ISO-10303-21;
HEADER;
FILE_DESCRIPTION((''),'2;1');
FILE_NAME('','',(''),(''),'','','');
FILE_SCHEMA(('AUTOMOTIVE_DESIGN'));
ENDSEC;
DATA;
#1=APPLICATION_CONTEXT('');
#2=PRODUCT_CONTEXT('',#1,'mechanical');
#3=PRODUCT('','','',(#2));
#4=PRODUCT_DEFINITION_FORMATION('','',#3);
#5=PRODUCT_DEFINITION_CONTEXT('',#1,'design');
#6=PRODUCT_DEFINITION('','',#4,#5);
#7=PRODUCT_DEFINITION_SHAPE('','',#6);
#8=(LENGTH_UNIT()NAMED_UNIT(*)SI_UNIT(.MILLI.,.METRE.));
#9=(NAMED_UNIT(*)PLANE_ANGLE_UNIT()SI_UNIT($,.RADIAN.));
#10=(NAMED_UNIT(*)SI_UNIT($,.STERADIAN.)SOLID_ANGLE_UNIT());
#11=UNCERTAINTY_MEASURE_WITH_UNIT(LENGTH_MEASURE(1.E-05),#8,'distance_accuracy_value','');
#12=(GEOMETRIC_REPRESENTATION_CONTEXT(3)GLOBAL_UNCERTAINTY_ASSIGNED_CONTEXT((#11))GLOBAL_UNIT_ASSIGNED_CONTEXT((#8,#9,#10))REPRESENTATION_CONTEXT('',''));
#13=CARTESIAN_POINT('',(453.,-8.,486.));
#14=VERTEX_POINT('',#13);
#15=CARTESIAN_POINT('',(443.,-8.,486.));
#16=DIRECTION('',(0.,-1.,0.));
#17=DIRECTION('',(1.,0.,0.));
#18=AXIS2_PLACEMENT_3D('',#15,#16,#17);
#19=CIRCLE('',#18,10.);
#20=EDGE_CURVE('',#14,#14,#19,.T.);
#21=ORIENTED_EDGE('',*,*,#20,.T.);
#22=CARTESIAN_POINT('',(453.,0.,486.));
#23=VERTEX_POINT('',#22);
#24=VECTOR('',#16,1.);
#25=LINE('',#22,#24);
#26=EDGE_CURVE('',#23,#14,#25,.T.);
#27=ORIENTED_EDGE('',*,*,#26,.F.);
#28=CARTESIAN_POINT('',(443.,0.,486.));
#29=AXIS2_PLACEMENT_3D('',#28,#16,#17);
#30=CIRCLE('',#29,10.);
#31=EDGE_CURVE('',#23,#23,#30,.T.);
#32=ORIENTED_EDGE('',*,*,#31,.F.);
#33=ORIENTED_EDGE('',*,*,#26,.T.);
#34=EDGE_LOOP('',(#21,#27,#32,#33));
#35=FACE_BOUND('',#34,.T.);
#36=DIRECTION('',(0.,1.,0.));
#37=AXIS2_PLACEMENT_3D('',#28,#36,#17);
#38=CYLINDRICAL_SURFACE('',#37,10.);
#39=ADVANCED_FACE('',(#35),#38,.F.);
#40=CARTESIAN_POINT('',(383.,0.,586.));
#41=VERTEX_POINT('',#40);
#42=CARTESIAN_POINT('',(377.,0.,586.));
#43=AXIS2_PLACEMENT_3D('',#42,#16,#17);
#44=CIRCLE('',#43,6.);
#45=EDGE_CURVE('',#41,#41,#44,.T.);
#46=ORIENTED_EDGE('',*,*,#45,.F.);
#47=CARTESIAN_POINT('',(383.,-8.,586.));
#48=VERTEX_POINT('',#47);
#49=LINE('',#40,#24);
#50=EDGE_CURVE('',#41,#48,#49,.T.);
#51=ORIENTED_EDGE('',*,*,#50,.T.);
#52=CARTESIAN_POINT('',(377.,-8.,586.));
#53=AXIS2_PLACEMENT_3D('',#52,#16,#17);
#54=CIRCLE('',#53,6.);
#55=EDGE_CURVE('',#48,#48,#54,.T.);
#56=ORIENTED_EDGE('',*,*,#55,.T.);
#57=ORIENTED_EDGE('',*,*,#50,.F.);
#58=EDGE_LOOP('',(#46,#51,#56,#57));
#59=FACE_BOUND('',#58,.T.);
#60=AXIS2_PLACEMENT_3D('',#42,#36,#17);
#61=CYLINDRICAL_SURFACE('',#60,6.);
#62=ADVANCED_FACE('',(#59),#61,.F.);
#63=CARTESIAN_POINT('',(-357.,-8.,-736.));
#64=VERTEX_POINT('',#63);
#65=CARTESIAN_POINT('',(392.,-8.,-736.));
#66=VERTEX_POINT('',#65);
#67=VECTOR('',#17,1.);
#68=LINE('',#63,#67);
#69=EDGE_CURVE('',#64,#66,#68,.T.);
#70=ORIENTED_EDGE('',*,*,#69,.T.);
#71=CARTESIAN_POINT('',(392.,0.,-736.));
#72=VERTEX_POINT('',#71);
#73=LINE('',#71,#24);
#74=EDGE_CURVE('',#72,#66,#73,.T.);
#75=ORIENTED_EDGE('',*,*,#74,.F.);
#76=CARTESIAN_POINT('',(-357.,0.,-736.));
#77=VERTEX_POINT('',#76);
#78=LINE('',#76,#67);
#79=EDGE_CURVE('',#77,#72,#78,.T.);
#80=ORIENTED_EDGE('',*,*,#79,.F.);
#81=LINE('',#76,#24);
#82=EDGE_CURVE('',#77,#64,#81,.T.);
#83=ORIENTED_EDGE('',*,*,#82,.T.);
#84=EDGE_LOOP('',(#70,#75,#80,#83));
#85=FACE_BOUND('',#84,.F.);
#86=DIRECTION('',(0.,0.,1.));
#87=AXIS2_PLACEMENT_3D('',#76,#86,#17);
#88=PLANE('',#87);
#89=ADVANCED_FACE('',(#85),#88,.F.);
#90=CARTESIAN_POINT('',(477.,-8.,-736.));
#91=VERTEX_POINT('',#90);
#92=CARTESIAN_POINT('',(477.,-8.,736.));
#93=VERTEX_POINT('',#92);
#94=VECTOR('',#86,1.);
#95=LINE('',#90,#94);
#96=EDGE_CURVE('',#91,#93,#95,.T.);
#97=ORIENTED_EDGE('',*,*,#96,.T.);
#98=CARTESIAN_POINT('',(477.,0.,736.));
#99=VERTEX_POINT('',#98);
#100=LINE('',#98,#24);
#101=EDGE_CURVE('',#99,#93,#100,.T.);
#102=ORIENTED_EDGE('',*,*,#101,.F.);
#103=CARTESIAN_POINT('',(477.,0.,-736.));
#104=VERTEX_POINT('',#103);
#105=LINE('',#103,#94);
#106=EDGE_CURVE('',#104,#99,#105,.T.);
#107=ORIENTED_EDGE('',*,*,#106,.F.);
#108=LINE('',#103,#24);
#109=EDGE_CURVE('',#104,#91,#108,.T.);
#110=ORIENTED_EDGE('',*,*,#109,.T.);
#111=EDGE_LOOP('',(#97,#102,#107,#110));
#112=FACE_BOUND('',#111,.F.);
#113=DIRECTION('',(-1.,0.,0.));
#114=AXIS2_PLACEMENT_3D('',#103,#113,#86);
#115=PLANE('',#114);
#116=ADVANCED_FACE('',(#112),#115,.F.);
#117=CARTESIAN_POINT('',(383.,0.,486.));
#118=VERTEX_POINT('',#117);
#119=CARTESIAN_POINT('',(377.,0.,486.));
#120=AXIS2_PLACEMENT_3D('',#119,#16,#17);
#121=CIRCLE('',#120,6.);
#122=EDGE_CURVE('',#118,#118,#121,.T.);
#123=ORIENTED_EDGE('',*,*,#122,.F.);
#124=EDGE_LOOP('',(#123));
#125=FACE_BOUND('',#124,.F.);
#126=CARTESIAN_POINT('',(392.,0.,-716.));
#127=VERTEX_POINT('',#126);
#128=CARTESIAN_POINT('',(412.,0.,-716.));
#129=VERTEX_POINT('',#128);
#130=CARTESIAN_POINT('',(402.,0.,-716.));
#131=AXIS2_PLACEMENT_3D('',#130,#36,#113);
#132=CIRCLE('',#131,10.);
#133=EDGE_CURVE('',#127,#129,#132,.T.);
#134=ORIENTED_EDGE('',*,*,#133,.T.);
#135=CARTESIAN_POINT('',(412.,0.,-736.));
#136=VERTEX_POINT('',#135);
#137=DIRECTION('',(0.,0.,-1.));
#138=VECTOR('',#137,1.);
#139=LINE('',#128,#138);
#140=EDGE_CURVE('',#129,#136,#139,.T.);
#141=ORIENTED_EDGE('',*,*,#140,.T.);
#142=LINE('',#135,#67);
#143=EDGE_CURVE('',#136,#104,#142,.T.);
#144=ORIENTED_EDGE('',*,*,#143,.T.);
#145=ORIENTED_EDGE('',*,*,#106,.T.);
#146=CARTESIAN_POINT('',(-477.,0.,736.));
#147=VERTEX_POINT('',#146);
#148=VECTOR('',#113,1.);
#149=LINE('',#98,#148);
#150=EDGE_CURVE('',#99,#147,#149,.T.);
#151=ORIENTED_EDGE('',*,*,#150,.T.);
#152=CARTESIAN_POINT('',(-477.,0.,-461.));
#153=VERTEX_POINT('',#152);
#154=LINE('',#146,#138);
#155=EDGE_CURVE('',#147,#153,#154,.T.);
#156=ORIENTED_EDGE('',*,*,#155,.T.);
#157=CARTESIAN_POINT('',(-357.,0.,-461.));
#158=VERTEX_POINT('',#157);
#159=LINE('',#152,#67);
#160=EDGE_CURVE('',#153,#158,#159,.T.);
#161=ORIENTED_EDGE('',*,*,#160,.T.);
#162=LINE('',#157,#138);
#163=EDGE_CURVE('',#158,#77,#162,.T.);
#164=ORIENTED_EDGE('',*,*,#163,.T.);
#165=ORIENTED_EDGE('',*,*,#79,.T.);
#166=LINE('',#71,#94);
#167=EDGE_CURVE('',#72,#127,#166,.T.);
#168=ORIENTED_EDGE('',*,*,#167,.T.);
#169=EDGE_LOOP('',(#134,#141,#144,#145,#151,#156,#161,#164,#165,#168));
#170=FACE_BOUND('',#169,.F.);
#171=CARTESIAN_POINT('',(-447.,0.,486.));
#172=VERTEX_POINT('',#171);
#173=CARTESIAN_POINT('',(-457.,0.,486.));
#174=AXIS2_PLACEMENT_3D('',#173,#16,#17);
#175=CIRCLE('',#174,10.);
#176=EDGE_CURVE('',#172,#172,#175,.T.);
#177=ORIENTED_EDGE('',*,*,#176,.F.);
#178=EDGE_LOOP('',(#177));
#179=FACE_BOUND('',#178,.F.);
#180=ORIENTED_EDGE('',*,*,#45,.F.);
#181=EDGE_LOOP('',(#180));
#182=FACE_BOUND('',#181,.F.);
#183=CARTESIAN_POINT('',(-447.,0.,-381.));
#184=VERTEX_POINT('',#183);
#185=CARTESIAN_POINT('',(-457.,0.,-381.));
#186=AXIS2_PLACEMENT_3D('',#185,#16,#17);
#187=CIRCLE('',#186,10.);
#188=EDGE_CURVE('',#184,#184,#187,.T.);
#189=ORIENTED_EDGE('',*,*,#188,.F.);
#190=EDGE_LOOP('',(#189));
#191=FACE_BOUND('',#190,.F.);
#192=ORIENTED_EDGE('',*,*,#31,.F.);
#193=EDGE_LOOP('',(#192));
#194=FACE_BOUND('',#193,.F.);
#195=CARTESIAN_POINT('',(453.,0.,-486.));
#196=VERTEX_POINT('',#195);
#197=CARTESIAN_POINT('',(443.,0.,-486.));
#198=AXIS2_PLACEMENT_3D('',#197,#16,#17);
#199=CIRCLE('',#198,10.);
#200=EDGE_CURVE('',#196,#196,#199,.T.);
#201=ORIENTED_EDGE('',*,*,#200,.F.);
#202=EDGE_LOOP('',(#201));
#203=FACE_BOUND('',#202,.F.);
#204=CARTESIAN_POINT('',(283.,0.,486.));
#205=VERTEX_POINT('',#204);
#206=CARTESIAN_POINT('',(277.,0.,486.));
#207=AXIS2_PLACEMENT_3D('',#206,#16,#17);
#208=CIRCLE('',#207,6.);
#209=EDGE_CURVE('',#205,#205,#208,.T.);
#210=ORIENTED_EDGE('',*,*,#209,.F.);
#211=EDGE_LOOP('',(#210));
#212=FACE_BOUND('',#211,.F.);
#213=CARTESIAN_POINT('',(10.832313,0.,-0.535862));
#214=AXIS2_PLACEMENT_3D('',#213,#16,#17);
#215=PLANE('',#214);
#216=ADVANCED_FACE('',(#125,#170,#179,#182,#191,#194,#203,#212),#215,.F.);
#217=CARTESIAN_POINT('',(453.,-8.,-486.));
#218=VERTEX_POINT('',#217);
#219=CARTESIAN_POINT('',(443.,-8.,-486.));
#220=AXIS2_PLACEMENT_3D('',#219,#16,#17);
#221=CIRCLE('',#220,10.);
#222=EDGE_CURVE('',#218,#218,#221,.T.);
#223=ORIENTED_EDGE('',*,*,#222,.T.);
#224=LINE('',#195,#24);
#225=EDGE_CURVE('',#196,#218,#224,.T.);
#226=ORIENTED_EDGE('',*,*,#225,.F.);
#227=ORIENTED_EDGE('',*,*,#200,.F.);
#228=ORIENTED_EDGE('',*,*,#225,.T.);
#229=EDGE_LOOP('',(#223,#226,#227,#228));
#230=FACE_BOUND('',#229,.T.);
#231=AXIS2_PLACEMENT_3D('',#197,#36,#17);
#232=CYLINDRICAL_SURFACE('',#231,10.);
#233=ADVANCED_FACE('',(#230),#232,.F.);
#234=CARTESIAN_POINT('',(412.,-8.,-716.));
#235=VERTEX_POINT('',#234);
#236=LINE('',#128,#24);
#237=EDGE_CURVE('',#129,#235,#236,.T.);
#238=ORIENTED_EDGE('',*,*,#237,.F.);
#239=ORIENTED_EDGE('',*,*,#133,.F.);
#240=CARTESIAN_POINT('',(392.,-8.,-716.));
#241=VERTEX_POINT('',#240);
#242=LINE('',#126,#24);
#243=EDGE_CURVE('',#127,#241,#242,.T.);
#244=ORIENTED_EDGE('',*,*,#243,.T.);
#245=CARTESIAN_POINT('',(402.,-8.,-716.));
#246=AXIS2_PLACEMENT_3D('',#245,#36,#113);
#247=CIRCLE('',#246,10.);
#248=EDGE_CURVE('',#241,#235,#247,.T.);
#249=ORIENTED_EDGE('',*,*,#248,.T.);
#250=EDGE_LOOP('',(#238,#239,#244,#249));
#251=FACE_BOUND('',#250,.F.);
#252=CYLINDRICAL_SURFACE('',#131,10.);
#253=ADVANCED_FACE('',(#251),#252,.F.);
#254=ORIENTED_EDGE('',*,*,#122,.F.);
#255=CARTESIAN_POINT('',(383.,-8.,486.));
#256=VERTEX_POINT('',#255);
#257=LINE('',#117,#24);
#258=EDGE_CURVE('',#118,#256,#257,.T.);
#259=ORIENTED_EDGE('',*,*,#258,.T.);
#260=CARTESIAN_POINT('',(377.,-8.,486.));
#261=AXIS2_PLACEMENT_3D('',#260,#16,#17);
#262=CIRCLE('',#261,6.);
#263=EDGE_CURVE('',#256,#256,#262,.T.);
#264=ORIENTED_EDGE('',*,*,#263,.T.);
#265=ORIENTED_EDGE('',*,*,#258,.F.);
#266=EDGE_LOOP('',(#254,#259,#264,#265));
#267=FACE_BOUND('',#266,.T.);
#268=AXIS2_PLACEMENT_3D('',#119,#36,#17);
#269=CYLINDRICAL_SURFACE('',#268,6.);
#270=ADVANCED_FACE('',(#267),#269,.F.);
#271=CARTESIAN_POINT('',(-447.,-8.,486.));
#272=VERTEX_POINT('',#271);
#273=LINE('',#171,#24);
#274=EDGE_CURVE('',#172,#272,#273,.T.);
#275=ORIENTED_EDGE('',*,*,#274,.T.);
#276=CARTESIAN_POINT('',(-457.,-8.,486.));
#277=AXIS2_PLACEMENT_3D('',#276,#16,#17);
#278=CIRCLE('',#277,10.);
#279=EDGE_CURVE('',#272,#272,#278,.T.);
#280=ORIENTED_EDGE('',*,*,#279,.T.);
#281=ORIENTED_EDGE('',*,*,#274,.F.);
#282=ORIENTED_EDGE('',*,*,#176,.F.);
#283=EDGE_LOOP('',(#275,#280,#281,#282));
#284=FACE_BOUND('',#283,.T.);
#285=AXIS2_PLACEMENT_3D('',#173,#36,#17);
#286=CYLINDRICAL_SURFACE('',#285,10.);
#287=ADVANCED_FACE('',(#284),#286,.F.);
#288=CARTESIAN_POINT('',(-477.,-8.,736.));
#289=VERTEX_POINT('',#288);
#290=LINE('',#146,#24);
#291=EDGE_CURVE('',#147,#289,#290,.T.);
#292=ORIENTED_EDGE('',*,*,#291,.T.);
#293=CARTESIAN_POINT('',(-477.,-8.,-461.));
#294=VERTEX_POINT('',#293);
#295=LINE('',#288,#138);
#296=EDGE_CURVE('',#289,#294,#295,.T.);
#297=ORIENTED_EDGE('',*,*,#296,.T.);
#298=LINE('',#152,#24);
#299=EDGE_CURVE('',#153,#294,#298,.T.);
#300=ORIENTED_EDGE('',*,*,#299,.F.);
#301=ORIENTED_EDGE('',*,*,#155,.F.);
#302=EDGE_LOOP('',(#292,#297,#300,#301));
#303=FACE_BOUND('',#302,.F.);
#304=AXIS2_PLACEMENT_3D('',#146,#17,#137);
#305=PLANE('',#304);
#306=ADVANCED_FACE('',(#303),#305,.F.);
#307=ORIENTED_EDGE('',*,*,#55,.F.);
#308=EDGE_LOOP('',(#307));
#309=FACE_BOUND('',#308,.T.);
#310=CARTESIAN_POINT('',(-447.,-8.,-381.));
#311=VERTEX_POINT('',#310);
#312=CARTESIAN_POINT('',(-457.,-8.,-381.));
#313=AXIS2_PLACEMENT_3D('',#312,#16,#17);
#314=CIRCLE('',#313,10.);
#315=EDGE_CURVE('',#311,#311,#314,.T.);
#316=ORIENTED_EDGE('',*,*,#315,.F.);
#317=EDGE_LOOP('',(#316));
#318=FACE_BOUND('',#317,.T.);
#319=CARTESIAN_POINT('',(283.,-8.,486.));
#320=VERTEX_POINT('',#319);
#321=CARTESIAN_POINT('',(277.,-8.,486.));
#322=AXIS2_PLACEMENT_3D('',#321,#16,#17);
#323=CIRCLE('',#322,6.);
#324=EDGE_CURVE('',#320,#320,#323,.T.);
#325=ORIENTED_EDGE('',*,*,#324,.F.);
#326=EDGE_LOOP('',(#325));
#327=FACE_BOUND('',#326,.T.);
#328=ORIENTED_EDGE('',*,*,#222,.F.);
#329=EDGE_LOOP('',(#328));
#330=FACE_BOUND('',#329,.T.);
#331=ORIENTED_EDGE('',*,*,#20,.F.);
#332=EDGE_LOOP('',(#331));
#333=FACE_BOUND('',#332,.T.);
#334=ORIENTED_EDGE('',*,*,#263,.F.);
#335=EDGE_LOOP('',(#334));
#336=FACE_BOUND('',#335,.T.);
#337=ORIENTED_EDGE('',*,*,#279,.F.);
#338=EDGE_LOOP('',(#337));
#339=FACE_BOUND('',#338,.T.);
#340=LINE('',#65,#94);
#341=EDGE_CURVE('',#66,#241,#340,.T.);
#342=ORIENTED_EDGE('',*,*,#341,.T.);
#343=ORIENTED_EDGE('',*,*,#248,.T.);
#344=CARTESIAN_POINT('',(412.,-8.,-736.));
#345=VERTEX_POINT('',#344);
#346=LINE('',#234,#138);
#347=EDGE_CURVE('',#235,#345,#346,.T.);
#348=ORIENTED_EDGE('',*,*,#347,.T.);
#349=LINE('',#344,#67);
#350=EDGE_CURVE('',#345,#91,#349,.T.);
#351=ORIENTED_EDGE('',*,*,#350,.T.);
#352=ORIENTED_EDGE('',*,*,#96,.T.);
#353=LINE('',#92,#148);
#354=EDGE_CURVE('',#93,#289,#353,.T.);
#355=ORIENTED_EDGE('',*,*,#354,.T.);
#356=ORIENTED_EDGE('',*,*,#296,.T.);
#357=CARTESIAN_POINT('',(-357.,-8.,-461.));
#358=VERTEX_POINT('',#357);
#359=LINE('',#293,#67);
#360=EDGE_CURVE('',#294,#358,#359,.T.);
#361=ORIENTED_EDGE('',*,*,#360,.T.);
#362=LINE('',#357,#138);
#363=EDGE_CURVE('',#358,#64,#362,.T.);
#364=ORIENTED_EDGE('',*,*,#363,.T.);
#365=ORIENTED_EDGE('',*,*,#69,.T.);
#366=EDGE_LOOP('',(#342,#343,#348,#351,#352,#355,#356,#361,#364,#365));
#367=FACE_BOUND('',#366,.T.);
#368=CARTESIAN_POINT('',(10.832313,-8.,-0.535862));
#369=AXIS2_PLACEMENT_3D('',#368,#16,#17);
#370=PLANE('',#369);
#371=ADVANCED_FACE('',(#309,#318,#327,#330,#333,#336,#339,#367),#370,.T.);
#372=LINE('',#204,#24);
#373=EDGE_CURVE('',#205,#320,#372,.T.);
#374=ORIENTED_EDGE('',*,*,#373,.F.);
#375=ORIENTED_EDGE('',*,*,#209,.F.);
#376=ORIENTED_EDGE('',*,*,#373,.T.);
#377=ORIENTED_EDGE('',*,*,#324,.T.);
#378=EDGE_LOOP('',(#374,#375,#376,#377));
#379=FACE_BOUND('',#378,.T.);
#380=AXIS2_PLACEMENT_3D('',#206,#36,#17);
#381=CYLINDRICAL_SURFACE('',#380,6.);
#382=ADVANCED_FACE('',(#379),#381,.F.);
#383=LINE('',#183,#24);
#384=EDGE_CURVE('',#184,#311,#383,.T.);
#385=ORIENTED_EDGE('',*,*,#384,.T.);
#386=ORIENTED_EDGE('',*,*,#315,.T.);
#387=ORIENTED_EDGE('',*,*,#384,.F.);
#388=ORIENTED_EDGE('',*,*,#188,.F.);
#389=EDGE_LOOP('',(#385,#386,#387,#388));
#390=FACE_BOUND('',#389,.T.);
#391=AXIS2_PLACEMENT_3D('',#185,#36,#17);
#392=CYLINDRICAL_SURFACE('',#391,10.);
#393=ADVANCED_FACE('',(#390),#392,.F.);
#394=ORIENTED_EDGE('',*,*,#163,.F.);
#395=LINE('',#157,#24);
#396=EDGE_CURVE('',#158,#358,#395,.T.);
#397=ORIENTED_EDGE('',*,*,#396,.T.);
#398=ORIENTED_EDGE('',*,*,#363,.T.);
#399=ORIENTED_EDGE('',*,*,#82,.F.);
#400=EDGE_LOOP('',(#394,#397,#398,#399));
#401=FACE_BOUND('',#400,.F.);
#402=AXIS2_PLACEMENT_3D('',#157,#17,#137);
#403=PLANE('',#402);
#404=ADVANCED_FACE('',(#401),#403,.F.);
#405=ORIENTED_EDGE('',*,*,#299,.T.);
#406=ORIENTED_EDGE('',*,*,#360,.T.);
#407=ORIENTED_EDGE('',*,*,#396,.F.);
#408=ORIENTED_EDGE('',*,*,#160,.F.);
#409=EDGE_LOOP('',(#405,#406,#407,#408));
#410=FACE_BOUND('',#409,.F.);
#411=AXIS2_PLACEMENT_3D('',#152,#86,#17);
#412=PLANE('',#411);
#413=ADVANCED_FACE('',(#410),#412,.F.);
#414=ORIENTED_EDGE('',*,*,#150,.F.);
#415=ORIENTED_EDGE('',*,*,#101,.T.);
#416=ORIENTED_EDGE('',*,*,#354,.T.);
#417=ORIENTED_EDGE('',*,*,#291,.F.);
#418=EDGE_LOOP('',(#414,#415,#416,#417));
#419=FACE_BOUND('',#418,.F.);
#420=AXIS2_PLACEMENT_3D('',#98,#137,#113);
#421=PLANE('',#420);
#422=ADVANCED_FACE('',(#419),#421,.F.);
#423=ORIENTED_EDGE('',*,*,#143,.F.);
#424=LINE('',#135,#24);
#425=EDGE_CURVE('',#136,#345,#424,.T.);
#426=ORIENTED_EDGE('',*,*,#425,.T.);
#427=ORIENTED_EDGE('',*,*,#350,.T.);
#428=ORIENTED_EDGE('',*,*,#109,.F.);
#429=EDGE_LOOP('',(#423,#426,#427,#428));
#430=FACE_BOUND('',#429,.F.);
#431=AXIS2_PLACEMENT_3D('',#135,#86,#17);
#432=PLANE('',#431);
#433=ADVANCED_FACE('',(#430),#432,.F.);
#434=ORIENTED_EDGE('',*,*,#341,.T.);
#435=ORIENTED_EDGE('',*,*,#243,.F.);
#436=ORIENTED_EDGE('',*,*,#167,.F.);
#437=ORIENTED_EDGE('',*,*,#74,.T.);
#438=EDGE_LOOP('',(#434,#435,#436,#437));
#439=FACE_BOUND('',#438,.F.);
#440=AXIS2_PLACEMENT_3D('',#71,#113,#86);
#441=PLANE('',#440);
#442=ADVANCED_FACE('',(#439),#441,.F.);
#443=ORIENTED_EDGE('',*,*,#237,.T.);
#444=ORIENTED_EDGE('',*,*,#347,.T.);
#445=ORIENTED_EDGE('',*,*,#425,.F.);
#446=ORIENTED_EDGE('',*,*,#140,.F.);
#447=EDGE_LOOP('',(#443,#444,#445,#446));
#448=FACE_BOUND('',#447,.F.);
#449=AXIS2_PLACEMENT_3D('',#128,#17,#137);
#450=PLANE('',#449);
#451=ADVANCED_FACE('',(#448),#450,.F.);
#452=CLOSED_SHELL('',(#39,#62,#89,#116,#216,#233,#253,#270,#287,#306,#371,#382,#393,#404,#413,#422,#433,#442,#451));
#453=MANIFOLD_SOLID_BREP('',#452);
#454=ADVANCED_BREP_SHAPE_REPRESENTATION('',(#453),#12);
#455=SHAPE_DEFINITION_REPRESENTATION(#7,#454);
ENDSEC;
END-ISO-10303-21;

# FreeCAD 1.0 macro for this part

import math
import FreeCAD as App
import Part
import Sketcher

doc = App.newDocument("Part")
params = doc.addObject("Spreadsheet::Sheet", "Params")
for row, (alias, value) in enumerate([
    ("sketch1_diameter", "20 mm"),
    ("sketch1_diameter2", "12 mm"),
    ("sketch1_width", "954 mm"),
    ("sketch1_width2", "120 mm"),
    ("sketch1_width3", "749 mm"),
    ("pad1_length", "8 mm"),
], start=1):
    params.set(f"A{row}", alias)
    params.set(f"B{row}", "=" + value)
    params.setAlias(f"B{row}", alias)

body = doc.addObject("PartDesign::Body", "Body")

# Sketch on XZ plane
sketch1 = body.newObject("Sketcher::SketchObject", "Sketch")
sketch1.AttachmentSupport = (doc.getObject("XZ_Plane"), [""])
sketch1.MapMode = "FlatFace"
sketch1.addGeometry([
    Part.LineSegment(App.Vector(477, 736, 0), App.Vector(-477, 736, 0)),  # 0
    Part.LineSegment(App.Vector(-477, 736, 0), App.Vector(-477, -461, 0)),  # 1
    Part.LineSegment(App.Vector(-477, -461, 0), App.Vector(-357, -461, 0)),  # 2
    Part.LineSegment(App.Vector(-357, -461, 0), App.Vector(-357, -736, 0)),  # 3
    Part.LineSegment(App.Vector(-357, -736, 0), App.Vector(392, -736, 0)),  # 4
    Part.LineSegment(App.Vector(392, -736, 0), App.Vector(392, -716, 0)),  # 5
    Part.ArcOfCircle(Part.Circle(App.Vector(402, -716, 0), App.Vector(0, 0, 1), 10), math.radians(0), math.radians(180)),  # 6
    Part.LineSegment(App.Vector(412, -716, 0), App.Vector(412, -736, 0)),  # 7
    Part.LineSegment(App.Vector(412, -736, 0), App.Vector(477, -736, 0)),  # 8
    Part.LineSegment(App.Vector(477, -736, 0), App.Vector(477, 736, 0)),  # 9
    Part.Circle(App.Vector(-457, -381, 0), App.Vector(0, 0, 1), 10),  # 10
    Part.Circle(App.Vector(443, -486, 0), App.Vector(0, 0, 1), 10),  # 11
    Part.Circle(App.Vector(-457, 486, 0), App.Vector(0, 0, 1), 10),  # 12
    Part.Circle(App.Vector(277, 486, 0), App.Vector(0, 0, 1), 6),  # 13
    Part.Circle(App.Vector(377, 486, 0), App.Vector(0, 0, 1), 6),  # 14
    Part.Circle(App.Vector(443, 486, 0), App.Vector(0, 0, 1), 10),  # 15
    Part.Circle(App.Vector(377, 586, 0), App.Vector(0, 0, 1), 6),  # 16
], False)
sketch1.addConstraint([
    Sketcher.Constraint("Coincident", 0, 2, 1, 1),
    Sketcher.Constraint("Coincident", 1, 2, 2, 1),
    Sketcher.Constraint("Coincident", 2, 2, 3, 1),
    Sketcher.Constraint("Coincident", 3, 2, 4, 1),
    Sketcher.Constraint("Coincident", 4, 2, 5, 1),
    Sketcher.Constraint("Tangent", 5, 2, 6, 2),
    Sketcher.Constraint("Tangent", 6, 1, 7, 1),
    Sketcher.Constraint("Coincident", 7, 2, 8, 1),
    Sketcher.Constraint("Coincident", 8, 2, 9, 1),
    Sketcher.Constraint("Coincident", 9, 2, 0, 1),
    Sketcher.Constraint("Horizontal", 0),
    Sketcher.Constraint("Vertical", 1),
    Sketcher.Constraint("Horizontal", 2),
    Sketcher.Constraint("Vertical", 3),
    Sketcher.Constraint("Horizontal", 4),
    Sketcher.Constraint("Vertical", 5),
    Sketcher.Constraint("Vertical", 7),
    Sketcher.Constraint("Horizontal", 8),
    Sketcher.Constraint("Vertical", 9),
    Sketcher.Constraint("Equal", 6, 10),
    Sketcher.Constraint("Equal", 10, 11),
    Sketcher.Constraint("Equal", 11, 12),
    Sketcher.Constraint("Equal", 13, 14),
    Sketcher.Constraint("Equal", 12, 15),
    Sketcher.Constraint("Equal", 14, 16),
    Sketcher.Constraint("Symmetric", 0, 2, 8, 2, -1, 1),
    Sketcher.Constraint("Symmetric", 11, 3, 15, 3, -1),
    Sketcher.Constraint("Horizontal", 12, 3, 13, 3),
    Sketcher.Constraint("Horizontal", 13, 3, 14, 3),
    Sketcher.Constraint("Horizontal", 14, 3, 15, 3),
    Sketcher.Constraint("Horizontal", 4, 2, 7, 2),
    Sketcher.Constraint("Vertical", 10, 3, 12, 3),
    Sketcher.Constraint("Vertical", 14, 3, 16, 3),
    Sketcher.Constraint("Diameter", 10, 20.0),
    Sketcher.Constraint("Diameter", 13, 12.0),
    Sketcher.Constraint("DistanceX", 0, 2, 0, 1, 954.0),
    Sketcher.Constraint("DistanceX", 2, 1, 2, 2, 120.0),
    Sketcher.Constraint("DistanceX", 4, 1, 4, 2, 749.0),
    Sketcher.Constraint("DistanceY", 1, 2, 1, 1, 1197.0),
    Sketcher.Constraint("DistanceY", 3, 2, 3, 1, 275.0),
    Sketcher.Constraint("DistanceY", 5, 1, 5, 2, 20.0),
    Sketcher.Constraint("DistanceX", 10, 3, -1, 1, 457.0),
    Sketcher.Constraint("DistanceY", 10, 3, -1, 1, 381.0),
    Sketcher.Constraint("DistanceX", -1, 1, 11, 3, 443.0),
    Sketcher.Constraint("DistanceY", 11, 3, -1, 1, 486.0),
    Sketcher.Constraint("DistanceX", -1, 1, 13, 3, 277.0),
    Sketcher.Constraint("DistanceX", -1, 1, 14, 3, 377.0),
    Sketcher.Constraint("DistanceY", -1, 1, 16, 3, 586.0),
])
sketch1.setExpression("Constraints[33]", "Params.sketch1_diameter")
sketch1.setExpression("Constraints[34]", "Params.sketch1_diameter2")
sketch1.setExpression("Constraints[35]", "Params.sketch1_width")
sketch1.setExpression("Constraints[36]", "Params.sketch1_width2")
sketch1.setExpression("Constraints[37]", "Params.sketch1_width3")
pad1 = body.newObject("PartDesign::Pad", "Pad")
pad1.Profile = sketch1
pad1.setExpression("Length", "Params.pad1_length")

doc.recompute()
